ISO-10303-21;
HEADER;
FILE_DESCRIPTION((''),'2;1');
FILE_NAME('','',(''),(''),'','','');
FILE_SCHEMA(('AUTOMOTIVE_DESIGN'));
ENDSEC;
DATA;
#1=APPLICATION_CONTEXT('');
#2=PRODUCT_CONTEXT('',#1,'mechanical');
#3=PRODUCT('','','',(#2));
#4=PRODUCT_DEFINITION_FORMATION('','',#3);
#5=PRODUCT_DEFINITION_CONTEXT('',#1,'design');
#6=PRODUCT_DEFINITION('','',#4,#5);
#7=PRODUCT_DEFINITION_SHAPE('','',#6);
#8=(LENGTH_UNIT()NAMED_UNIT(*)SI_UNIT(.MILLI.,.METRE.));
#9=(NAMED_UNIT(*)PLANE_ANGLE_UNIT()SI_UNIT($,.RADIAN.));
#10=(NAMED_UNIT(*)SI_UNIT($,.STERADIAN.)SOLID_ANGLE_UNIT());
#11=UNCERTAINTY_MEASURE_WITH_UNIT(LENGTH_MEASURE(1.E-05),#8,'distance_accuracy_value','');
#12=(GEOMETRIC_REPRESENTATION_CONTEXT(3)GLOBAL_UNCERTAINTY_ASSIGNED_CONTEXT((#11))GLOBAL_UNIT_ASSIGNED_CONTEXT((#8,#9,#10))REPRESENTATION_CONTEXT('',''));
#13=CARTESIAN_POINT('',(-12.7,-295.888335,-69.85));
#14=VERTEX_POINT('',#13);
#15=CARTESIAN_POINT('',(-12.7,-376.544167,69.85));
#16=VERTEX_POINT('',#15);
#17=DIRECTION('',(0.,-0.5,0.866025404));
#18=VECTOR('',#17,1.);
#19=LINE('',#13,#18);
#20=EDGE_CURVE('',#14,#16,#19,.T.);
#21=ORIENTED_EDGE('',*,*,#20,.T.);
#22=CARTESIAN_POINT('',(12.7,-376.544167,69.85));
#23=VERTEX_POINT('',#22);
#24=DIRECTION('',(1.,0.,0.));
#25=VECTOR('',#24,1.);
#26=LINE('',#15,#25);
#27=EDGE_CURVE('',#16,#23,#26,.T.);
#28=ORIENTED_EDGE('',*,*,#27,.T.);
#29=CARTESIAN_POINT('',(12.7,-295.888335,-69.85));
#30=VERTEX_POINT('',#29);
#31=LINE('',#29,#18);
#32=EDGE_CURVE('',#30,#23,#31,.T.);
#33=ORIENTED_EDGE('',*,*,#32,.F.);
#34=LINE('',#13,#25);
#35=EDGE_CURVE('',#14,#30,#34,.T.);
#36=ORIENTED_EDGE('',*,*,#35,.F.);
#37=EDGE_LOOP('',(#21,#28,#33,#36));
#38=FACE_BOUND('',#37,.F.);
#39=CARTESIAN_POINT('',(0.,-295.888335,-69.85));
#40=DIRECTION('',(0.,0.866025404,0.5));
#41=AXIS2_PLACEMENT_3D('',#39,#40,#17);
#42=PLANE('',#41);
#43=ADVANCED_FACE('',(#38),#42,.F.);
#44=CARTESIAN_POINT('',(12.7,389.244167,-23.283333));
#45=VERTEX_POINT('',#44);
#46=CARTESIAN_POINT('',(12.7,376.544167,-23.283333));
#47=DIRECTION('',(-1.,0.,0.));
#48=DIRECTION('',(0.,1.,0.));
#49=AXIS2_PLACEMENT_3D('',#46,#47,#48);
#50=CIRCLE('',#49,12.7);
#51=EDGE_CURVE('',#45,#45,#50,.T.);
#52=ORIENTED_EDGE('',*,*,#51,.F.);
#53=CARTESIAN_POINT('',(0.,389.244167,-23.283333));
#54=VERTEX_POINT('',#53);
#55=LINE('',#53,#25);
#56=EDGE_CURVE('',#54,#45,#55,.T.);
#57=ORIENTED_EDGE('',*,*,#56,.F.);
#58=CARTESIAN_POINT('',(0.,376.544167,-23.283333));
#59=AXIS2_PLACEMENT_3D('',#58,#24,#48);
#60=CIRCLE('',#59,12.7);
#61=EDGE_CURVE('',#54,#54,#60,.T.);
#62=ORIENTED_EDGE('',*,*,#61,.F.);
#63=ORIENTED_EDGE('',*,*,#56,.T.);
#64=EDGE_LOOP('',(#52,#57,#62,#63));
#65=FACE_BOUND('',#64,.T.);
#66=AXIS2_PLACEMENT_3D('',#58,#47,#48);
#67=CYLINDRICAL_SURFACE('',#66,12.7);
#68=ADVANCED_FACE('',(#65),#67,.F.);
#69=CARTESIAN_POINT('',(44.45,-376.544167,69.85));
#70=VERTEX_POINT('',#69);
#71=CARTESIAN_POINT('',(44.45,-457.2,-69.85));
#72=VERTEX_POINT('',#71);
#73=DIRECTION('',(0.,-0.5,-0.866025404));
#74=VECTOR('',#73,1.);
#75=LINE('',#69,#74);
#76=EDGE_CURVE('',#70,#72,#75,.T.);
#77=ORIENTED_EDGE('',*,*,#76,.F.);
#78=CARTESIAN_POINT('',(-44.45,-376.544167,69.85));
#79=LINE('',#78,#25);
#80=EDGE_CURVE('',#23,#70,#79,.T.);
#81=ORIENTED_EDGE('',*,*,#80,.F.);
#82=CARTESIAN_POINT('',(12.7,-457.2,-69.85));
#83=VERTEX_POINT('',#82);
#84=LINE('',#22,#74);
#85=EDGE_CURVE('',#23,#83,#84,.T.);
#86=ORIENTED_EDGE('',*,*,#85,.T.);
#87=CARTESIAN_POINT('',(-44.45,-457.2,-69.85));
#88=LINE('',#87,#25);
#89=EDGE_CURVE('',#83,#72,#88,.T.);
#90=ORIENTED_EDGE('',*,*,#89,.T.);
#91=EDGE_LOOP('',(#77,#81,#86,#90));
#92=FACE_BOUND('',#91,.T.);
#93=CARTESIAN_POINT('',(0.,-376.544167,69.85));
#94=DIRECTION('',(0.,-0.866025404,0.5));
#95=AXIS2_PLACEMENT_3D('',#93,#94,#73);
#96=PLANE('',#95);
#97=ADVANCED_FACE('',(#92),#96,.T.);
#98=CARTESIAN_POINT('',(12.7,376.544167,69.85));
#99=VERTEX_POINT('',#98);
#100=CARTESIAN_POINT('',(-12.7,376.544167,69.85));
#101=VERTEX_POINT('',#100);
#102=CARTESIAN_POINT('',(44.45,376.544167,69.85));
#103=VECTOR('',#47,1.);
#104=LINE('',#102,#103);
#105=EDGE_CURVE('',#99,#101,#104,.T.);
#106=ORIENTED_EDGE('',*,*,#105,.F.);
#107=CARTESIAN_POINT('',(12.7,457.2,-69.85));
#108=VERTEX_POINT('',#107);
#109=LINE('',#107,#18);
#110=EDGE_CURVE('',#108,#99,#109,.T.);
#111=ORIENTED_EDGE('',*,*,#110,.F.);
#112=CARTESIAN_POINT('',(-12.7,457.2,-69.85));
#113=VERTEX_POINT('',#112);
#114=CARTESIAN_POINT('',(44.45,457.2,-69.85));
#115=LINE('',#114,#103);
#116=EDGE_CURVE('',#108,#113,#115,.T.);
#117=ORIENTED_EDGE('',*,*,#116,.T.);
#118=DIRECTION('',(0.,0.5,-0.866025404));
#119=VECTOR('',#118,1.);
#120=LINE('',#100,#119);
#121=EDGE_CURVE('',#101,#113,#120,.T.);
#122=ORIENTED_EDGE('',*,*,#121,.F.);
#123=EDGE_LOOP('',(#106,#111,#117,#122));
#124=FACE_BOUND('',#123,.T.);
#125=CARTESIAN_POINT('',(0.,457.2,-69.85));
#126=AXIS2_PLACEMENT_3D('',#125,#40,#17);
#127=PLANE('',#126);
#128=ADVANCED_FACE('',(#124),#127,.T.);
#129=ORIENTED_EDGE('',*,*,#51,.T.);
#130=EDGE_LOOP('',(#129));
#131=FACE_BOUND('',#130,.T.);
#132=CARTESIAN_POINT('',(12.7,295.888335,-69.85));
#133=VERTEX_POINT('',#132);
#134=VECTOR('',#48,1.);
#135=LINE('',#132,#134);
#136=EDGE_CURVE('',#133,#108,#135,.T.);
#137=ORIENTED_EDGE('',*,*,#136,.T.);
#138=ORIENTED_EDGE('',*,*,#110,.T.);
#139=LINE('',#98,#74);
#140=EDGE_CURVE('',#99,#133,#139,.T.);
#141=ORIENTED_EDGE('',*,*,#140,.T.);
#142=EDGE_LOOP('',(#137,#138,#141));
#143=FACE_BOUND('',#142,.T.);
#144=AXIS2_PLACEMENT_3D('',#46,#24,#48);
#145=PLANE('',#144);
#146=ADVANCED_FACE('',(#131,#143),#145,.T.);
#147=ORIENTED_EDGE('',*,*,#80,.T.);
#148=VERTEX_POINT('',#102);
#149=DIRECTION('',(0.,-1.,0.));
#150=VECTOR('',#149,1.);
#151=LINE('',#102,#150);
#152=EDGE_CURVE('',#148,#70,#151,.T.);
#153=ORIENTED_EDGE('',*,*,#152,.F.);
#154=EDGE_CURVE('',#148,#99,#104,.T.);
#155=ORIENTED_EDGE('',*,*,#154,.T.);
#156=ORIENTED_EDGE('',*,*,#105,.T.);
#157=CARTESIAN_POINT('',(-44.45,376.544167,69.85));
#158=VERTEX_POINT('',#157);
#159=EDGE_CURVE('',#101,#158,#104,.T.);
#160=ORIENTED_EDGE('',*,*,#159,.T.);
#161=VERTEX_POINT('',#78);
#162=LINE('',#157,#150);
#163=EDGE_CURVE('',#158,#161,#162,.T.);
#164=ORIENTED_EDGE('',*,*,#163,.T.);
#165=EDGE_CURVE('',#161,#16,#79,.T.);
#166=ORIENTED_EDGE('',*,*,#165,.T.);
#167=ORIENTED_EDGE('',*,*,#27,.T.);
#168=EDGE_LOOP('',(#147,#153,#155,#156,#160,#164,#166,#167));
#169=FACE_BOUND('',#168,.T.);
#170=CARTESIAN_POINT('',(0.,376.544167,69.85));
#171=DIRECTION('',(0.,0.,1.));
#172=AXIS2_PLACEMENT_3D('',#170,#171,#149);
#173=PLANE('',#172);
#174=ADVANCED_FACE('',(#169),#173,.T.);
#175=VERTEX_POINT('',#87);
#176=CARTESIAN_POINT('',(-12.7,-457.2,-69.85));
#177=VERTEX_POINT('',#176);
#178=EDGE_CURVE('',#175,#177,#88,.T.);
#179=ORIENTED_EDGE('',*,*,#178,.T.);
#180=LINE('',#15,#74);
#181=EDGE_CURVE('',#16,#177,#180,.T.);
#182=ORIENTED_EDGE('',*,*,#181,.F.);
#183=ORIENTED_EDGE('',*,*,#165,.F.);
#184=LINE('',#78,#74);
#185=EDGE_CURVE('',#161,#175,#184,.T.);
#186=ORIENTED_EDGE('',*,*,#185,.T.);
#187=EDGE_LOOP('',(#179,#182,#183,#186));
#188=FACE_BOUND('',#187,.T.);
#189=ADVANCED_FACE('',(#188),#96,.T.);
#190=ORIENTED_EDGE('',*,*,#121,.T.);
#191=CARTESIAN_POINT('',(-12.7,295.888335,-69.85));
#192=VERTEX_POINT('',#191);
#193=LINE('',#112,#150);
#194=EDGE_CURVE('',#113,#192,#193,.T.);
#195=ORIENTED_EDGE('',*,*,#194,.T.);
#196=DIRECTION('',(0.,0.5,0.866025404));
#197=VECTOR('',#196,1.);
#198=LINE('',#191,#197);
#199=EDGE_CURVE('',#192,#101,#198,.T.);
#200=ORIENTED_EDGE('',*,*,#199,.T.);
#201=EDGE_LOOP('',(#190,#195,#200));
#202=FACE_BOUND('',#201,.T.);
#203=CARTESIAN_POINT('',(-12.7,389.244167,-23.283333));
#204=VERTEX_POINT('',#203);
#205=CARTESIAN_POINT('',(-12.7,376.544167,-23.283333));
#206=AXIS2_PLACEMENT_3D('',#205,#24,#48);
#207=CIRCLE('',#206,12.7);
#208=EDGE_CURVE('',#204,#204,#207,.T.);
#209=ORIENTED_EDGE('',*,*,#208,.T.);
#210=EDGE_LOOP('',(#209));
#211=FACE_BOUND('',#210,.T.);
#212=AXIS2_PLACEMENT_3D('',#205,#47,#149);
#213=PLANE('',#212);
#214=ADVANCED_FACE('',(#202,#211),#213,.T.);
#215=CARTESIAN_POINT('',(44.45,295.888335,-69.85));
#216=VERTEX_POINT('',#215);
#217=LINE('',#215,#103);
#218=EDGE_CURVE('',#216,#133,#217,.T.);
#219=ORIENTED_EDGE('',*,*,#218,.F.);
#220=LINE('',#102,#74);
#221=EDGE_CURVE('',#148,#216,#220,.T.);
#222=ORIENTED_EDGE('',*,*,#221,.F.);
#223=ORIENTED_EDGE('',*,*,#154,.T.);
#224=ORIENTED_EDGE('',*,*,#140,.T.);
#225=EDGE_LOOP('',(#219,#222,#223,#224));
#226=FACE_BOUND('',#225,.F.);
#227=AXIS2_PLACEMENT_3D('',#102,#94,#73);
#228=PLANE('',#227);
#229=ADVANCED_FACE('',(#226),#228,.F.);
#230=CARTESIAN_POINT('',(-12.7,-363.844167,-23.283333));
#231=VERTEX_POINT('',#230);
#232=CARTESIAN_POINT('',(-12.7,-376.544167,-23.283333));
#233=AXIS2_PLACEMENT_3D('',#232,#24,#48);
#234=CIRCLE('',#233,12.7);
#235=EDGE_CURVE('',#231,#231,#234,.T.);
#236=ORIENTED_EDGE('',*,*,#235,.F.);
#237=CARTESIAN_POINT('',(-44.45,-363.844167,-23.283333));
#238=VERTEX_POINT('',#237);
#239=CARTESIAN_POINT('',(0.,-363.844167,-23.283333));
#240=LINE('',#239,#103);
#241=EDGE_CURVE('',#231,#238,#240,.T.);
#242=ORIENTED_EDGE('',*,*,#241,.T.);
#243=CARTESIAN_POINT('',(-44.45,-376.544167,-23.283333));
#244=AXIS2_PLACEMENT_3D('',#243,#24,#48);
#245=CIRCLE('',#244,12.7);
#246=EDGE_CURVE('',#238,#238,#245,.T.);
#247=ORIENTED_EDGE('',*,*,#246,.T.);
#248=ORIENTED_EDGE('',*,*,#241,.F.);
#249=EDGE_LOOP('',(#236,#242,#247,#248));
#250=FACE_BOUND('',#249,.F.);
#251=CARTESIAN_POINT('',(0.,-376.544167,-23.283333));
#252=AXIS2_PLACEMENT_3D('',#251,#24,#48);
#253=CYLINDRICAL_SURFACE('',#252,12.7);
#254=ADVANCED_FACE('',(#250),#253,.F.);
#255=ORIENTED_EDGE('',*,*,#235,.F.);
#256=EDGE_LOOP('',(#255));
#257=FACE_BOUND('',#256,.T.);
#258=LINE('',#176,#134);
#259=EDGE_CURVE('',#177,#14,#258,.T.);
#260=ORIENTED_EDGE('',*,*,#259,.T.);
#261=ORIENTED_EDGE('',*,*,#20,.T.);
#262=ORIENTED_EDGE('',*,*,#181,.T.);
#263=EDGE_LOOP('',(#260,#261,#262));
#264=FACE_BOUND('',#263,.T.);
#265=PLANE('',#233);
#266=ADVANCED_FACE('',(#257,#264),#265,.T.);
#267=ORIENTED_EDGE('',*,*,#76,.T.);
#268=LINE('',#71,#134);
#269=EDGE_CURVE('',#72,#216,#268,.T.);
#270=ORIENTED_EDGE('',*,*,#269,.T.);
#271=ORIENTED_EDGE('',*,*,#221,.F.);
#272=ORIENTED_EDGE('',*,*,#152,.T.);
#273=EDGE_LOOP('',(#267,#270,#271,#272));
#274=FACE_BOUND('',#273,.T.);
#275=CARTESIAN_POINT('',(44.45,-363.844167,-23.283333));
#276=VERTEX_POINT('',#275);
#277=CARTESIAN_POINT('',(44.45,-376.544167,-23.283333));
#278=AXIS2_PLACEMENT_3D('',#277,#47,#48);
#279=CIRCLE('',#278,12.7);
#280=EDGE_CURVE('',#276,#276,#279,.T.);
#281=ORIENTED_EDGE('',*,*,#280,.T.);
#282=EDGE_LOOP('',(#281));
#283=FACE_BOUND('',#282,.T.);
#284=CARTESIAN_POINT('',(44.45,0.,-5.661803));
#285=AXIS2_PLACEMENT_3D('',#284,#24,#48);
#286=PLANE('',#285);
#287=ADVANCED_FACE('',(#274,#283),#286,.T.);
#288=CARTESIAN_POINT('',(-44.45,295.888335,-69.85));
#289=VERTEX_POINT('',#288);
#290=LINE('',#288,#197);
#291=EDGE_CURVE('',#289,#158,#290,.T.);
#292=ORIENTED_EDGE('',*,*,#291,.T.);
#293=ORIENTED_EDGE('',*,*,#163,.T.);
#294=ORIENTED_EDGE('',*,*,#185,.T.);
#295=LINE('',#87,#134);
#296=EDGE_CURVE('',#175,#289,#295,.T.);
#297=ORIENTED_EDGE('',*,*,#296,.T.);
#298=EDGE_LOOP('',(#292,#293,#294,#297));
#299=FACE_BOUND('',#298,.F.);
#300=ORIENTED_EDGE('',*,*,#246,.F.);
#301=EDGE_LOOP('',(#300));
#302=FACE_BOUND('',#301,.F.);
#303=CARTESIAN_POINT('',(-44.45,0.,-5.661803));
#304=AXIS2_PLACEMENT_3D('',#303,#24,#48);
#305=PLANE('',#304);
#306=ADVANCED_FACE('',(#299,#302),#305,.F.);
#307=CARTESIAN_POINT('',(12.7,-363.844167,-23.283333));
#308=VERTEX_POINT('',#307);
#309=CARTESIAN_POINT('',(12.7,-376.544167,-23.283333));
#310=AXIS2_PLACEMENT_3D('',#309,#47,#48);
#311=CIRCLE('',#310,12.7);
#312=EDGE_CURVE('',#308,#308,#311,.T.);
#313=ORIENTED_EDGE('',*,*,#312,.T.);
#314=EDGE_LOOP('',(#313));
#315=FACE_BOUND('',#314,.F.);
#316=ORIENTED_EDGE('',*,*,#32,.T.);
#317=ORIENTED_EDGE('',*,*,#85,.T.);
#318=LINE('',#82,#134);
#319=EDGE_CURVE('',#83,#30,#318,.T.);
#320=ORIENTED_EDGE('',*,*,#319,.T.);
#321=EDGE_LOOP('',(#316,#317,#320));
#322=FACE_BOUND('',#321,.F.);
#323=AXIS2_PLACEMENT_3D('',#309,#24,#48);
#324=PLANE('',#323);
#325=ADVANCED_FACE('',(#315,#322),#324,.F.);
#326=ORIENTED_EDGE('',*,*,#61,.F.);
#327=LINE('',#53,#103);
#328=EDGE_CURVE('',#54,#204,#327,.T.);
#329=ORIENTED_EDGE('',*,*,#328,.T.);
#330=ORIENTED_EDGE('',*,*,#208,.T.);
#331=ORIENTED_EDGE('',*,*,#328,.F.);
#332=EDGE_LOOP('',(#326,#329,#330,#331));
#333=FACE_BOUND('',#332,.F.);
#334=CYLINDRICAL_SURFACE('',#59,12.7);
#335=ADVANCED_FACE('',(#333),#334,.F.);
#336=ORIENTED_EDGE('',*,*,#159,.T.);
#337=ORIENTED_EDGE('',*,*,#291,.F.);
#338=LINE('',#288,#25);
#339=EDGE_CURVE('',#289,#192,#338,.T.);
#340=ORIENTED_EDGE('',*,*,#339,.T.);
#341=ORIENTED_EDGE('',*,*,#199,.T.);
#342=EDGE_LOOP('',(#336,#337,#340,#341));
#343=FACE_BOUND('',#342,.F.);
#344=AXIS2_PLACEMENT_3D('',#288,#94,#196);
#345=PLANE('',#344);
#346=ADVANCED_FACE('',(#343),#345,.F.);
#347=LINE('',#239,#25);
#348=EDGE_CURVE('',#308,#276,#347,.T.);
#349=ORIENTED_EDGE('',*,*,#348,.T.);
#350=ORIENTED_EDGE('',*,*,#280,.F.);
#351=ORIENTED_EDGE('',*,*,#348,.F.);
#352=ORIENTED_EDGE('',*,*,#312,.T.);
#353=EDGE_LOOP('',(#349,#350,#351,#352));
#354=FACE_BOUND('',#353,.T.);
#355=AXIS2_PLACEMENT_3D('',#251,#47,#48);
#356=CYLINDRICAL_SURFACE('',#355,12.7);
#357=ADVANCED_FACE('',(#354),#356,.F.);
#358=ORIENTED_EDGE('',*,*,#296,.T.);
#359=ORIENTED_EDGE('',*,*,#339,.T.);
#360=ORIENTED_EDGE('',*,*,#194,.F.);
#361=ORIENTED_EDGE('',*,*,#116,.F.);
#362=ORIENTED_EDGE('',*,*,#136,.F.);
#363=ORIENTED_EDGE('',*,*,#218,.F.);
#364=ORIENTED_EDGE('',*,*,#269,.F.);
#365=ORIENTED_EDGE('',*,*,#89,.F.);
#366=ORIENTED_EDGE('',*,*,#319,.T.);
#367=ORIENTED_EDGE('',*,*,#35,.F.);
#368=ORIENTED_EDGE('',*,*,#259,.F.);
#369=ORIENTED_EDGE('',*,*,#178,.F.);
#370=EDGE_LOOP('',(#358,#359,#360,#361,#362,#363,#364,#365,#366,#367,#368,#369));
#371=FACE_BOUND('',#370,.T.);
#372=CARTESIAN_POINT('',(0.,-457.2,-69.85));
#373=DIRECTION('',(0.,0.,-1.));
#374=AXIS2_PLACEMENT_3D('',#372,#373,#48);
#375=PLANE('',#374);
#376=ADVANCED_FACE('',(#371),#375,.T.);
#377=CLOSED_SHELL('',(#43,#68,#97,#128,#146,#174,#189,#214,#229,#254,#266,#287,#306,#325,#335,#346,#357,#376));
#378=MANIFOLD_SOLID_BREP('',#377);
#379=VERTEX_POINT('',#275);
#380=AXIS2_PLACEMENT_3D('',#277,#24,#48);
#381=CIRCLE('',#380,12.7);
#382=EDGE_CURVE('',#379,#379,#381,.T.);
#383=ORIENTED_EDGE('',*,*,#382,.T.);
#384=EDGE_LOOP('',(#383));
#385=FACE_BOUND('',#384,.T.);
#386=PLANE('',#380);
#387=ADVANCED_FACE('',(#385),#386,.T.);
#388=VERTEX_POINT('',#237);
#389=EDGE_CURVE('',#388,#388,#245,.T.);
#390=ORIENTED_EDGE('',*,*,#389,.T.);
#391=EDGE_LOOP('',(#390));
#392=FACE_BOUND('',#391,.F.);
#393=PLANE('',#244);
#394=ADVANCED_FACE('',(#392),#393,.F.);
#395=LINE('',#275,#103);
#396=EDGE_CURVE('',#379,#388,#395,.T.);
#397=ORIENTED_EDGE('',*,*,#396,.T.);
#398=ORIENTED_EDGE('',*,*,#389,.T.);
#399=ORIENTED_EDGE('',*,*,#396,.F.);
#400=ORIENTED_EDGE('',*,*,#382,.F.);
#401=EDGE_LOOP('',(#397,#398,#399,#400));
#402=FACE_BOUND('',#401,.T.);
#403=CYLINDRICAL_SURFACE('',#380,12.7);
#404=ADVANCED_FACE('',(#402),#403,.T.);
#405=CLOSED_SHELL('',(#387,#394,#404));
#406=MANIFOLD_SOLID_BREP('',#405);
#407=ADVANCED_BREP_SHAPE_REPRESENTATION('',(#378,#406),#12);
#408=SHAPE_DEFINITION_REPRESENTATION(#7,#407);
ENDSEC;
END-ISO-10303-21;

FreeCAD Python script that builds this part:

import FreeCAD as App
import Part
import Sketcher
from FreeCAD import Vector
Q = App.Units.Quantity

doc = App.newDocument("Part")
params = doc.addObject("Spreadsheet::Sheet", "Params")
for row, (alias, value) in enumerate([
    ("sketch1_width", "36 in"),
    ("pad1_length", "1.75 in"),
    ("pad1_length2", "1.75 in"),
    ("pocket1_length", "0.5 in"),
    ("pocket1_length2", "0.5 in"),
    ("pocket2_length", "1.25 in"),
    ("pocket3_length", "1.25 in"),
    ("sketch5_diameter", "1 in"),
    ("sketch6_diameter", "1 in"),
    ("pad2_length", "3.5 in"),
], start=1):
    params.set(f"A{row}", alias)
    params.set(f"B{row}", "=" + value)
    params.setAlias(f"B{row}", alias)

body = doc.addObject("PartDesign::Body", "Body")

sketch1 = doc.addObject("Sketcher::SketchObject", "Sketch")
body.addObject(sketch1)
sketch1.AttachmentSupport = (doc.YZ_Plane, [""])
sketch1.MapMode = "FlatFace"
sketch1.addGeometry([
    Part.LineSegment(Vector(377, 70, 0), Vector(-377, 70, 0)),
    Part.LineSegment(Vector(-377, 70, 0), Vector(-457, -70, 0)),
    Part.LineSegment(Vector(-457, -70, 0), Vector(457, -70, 0)),
    Part.LineSegment(Vector(457, -70, 0), Vector(377, 70, 0)),
], False)
sketch1.addConstraint([
    Sketcher.Constraint("Coincident", 0, 2, 1, 1),
    Sketcher.Constraint("Coincident", 1, 2, 2, 1),
    Sketcher.Constraint("Coincident", 2, 2, 3, 1),
    Sketcher.Constraint("Coincident", 3, 2, 0, 1),
    Sketcher.Constraint("Horizontal", 0),
    Sketcher.Constraint("Horizontal", 2),
    Sketcher.Constraint("Equal", 1, 3),
    Sketcher.Constraint("DistanceX", 2, 1, 2, 2, Q("36 in")),
    Sketcher.Constraint("DistanceX", 1, 2, -1, 1, Q("18 in")),
    Sketcher.Constraint("Angle", 1, Q("-120 deg")),
    Sketcher.Constraint("DistanceY", 1, 2, 0, 2, Q("5.5 in")),
    Sketcher.Constraint("DistanceY", -1, 1, 0, 2, Q("2.75 in")),
])
sketch1.setExpression("Constraints[7]", "Params.sketch1_width")
pad1 = doc.addObject("PartDesign::Pad", "Pad")
body.addObject(pad1)
pad1.Profile = sketch1
pad1.Type = "TwoLengths"
pad1.setExpression("Length", "Params.pad1_length")
pad1.setExpression("Length2", "Params.pad1_length2")

sketch2 = doc.addObject("Sketcher::SketchObject", "Sketch001")
body.addObject(sketch2)
sketch2.AttachmentSupport = (doc.YZ_Plane, [""])
sketch2.MapMode = "FlatFace"
sketch2.addGeometry([
    Part.LineSegment(Vector(-296, -70, 0), Vector(-377, 70, 0)),
    Part.LineSegment(Vector(-377, 70, 0), Vector(-457, -70, 0)),
    Part.LineSegment(Vector(-457, -70, 0), Vector(-296, -70, 0)),
], False)
sketch2.addConstraint([
    Sketcher.Constraint("Coincident", 0, 2, 1, 1),
    Sketcher.Constraint("Coincident", 1, 2, 2, 1),
    Sketcher.Constraint("Coincident", 2, 2, 0, 1),
    Sketcher.Constraint("Horizontal", 2),
    Sketcher.Constraint("Equal", 0, 1),
    Sketcher.Constraint("DistanceX", 1, 2, -1, 1, Q("18 in")),
    Sketcher.Constraint("Angle", 0, Q("120 deg")),
    Sketcher.Constraint("DistanceY", 1, 2, 0, 2, Q("5.5 in")),
    Sketcher.Constraint("DistanceY", -1, 1, 0, 2, Q("2.75 in")),
])
pocket1 = doc.addObject("PartDesign::Pocket", "Pocket")
body.addObject(pocket1)
pocket1.Profile = sketch2
pocket1.Type = "TwoLengths"
pocket1.setExpression("Length", "Params.pocket1_length")
pocket1.setExpression("Length2", "Params.pocket1_length2")

sketch3 = doc.addObject("Sketcher::SketchObject", "Sketch002")
body.addObject(sketch3)
sketch3.AttachmentSupport = (doc.YZ_Plane, [""])
sketch3.MapMode = "FlatFace"
sketch3.AttachmentOffset = App.Placement(Vector(0, 0, 1.75 * 25.4), App.Rotation())
sketch3.addGeometry([
    Part.LineSegment(Vector(457, -70, 0), Vector(377, 70, 0)),
    Part.LineSegment(Vector(377, 70, 0), Vector(296, -70, 0)),
    Part.LineSegment(Vector(296, -70, 0), Vector(457, -70, 0)),
], False)
sketch3.addConstraint([
    Sketcher.Constraint("Coincident", 0, 2, 1, 1),
    Sketcher.Constraint("Coincident", 1, 2, 2, 1),
    Sketcher.Constraint("Coincident", 2, 2, 0, 1),
    Sketcher.Constraint("Horizontal", 2),
    Sketcher.Constraint("Equal", 0, 1),
    Sketcher.Constraint("DistanceX", -1, 1, 2, 2, Q("18 in")),
    Sketcher.Constraint("Angle", 0, Q("120 deg")),
    Sketcher.Constraint("DistanceY", 1, 2, 0, 2, Q("5.5 in")),
    Sketcher.Constraint("DistanceY", -1, 1, 0, 2, Q("2.75 in")),
])
pocket2 = doc.addObject("PartDesign::Pocket", "Pocket001")
body.addObject(pocket2)
pocket2.Profile = sketch3
pocket2.setExpression("Length", "Params.pocket2_length")

sketch4 = doc.addObject("Sketcher::SketchObject", "Sketch003")
body.addObject(sketch4)
sketch4.AttachmentSupport = (doc.YZ_Plane, [""])
sketch4.MapMode = "FlatFace"
sketch4.AttachmentOffset = App.Placement(Vector(0, 0, -1.75 * 25.4), App.Rotation())
sketch4.addGeometry([
    Part.LineSegment(Vector(296, -70, 0), Vector(377, 70, 0)),
    Part.LineSegment(Vector(377, 70, 0), Vector(457, -70, 0)),
    Part.LineSegment(Vector(457, -70, 0), Vector(296, -70, 0)),
], False)
sketch4.addConstraint([
    Sketcher.Constraint("Coincident", 0, 2, 1, 1),
    Sketcher.Constraint("Coincident", 1, 2, 2, 1),
    Sketcher.Constraint("Coincident", 2, 2, 0, 1),
    Sketcher.Constraint("Horizontal", 2),
    Sketcher.Constraint("Equal", 0, 1),
    Sketcher.Constraint("DistanceX", -1, 1, 1, 2, Q("18 in")),
    Sketcher.Constraint("Angle", 0, Q("60 deg")),
    Sketcher.Constraint("DistanceY", 1, 2, 0, 2, Q("5.5 in")),
    Sketcher.Constraint("DistanceY", -1, 1, 0, 2, Q("2.75 in")),
])
pocket3 = doc.addObject("PartDesign::Pocket", "Pocket002")
body.addObject(pocket3)
pocket3.Profile = sketch4
pocket3.setExpression("Length", "Params.pocket3_length")
pocket3.Reversed = True

sketch5 = doc.addObject("Sketcher::SketchObject", "Sketch004")
body.addObject(sketch5)
sketch5.AttachmentSupport = (doc.YZ_Plane, [""])
sketch5.MapMode = "FlatFace"
sketch5.addGeometry([
    Part.Circle(Vector(-377, -23, 0), Vector(0, 0, 1), 13),
    Part.Circle(Vector(377, -23, 0), Vector(0, 0, 1), 13),
], False)
sketch5.addConstraint([
    Sketcher.Constraint("Equal", 0, 1),
    Sketcher.Constraint("Symmetric", 0, 3, 1, 3, -2),
    Sketcher.Constraint("Diameter", 0, Q("1 in")),
    Sketcher.Constraint("DistanceX", 0, 3, -1, 1, Q("376.544167 mm")),
    Sketcher.Constraint("DistanceY", 0, 3, -1, 1, Q("23.283333 mm")),
])
sketch5.setExpression("Constraints[2]", "Params.sketch5_diameter")
pocket4 = doc.addObject("PartDesign::Pocket", "Pocket003")
body.addObject(pocket4)
pocket4.Profile = sketch5
pocket4.Type = "ThroughAll"
pocket4.Midplane = True
body2 = doc.addObject("PartDesign::Body", "Body001")

sketch6 = doc.addObject("Sketcher::SketchObject", "Sketch005")
body2.addObject(sketch6)
sketch6.AttachmentSupport = (doc.getObject("YZ_Plane001"), [""])
sketch6.MapMode = "FlatFace"
sketch6.AttachmentOffset = App.Placement(Vector(0, 0, 1.75 * 25.4), App.Rotation())
sketch6.addGeometry(Part.Circle(Vector(-377, -23, 0), Vector(0, 0, 1), 13), False)
sketch6.addConstraint([
    Sketcher.Constraint("Diameter", 0, Q("1 in")),
    Sketcher.Constraint("DistanceX", 0, 3, -1, 1, Q("376.544167 mm")),
    Sketcher.Constraint("DistanceY", 0, 3, -1, 1, Q("23.283333 mm")),
])
sketch6.setExpression("Constraints[0]", "Params.sketch6_diameter")
pad2 = doc.addObject("PartDesign::Pad", "Pad001")
body2.addObject(pad2)
pad2.Profile = sketch6
pad2.setExpression("Length", "Params.pad2_length")
pad2.Reversed = True

doc.recompute()
